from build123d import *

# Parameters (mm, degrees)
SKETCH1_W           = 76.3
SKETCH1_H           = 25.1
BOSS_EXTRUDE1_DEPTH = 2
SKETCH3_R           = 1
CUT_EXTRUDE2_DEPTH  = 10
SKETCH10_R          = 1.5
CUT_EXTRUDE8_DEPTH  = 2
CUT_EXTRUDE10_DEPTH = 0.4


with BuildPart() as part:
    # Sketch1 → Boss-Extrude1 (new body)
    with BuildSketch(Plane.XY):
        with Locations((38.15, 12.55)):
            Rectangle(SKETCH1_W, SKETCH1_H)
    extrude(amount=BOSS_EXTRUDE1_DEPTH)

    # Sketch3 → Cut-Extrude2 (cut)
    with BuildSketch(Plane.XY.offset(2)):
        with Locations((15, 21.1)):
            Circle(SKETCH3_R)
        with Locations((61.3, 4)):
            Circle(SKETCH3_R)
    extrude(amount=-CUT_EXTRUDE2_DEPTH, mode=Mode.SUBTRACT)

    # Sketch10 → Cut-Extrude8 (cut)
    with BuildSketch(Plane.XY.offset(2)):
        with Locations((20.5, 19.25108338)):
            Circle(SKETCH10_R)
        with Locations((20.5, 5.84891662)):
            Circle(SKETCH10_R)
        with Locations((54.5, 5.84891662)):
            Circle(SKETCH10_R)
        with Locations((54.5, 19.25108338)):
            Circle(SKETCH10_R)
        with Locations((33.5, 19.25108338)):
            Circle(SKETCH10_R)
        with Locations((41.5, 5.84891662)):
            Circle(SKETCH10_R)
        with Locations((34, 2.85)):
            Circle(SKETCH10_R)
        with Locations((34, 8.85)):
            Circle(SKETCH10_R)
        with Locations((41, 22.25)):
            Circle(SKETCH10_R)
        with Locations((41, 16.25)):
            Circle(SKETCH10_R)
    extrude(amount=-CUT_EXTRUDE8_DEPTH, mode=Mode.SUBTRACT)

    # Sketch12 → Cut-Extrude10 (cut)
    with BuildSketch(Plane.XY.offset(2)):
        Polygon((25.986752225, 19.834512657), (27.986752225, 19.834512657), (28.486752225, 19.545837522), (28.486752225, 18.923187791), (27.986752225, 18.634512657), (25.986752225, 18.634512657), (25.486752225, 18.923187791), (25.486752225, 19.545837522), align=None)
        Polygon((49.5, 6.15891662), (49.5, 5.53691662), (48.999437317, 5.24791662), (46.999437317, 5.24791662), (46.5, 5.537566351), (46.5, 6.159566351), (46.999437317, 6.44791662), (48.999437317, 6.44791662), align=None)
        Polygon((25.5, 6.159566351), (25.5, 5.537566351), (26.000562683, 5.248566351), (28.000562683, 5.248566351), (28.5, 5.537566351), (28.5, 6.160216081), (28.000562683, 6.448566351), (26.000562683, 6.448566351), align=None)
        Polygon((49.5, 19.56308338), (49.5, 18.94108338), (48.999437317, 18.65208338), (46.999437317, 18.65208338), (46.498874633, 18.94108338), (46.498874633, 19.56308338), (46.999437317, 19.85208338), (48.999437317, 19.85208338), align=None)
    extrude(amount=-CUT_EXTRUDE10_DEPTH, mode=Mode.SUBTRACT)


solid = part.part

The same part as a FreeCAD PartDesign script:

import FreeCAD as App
import Part
import Sketcher

V = App.Vector
Q = App.Units.Quantity


def add_polygon(sketch, points):
    """Adds a closed chain of lines whose ends are joined by coincident constraints."""
    first, n = sketch.GeometryCount, len(points)
    for a, b in zip(points, points[1:] + points[:1]):
        sketch.addGeometry(Part.LineSegment(App.Vector(*a, 0), App.Vector(*b, 0)), False)
    for i in range(n):
        sketch.addConstraint(Sketcher.Constraint("Coincident", first + i, 2, first + (i + 1) % n, 1))

doc = App.newDocument("Part")
params = doc.addObject("Spreadsheet::Sheet", "Params")
for row, (alias, value) in enumerate([
    ("sketch1_width", "76.3 mm"),
    ("sketch1_height", "25.1 mm"),
    ("pad1_length", "2 mm"),
    ("sketch2_diameter", "2 mm"),
    ("pocket1_length", "10 mm"),
    ("sketch3_diameter", "3 mm"),
    ("pocket2_length", "2 mm"),
    ("sketch4_width", "2 mm"),
    ("pocket3_length", "0.4 mm"),
], start=1):
    params.set(f"A{row}", alias)
    params.set(f"B{row}", "=" + value)
    params.setAlias(f"B{row}", alias)

body = doc.addObject("PartDesign::Body", "Body")

sketch1 = body.newObject("Sketcher::SketchObject", "Sketch")
sketch1.AttachmentSupport = (doc.getObject("XY_Plane"), [""])
sketch1.MapMode = "FlatFace"
add_polygon(sketch1, [(0, 25), (0, 0), (76, 0), (76, 25)])
sketch1.addConstraint([
    Sketcher.Constraint("Vertical", 0),
    Sketcher.Constraint("Horizontal", 1),
    Sketcher.Constraint("Vertical", 2),
    Sketcher.Constraint("Horizontal", 3),
    Sketcher.Constraint("Coincident", 0, 2, -1, 1),
    Sketcher.Constraint("DistanceX", 1, 1, 1, 2, Q("76.3 mm")),
    Sketcher.Constraint("DistanceY", 0, 2, 0, 1, Q("25.1 mm")),
])
sketch1.setExpression("Constraints[9]", "Params.sketch1_width")
sketch1.setExpression("Constraints[10]", "Params.sketch1_height")
pad1 = body.newObject("PartDesign::Pad", "Pad")
pad1.Profile = sketch1
pad1.setExpression("Length", "Params.pad1_length")

sketch2 = body.newObject("Sketcher::SketchObject", "Sketch001")
sketch2.AttachmentSupport = (doc.getObject("XY_Plane"), [""])
sketch2.MapMode = "FlatFace"
sketch2.AttachmentOffset = App.Placement(V(0, 0, 2), App.Rotation())
sketch2.addGeometry([
    Part.Circle(V(15, 21.1, 0), V(0, 0, 1), 1),
    Part.Circle(V(61.3, 4, 0), V(0, 0, 1), 1),
], False)
sketch2.addConstraint([
    Sketcher.Constraint("Equal", 0, 1),
    Sketcher.Constraint("Diameter", 0, Q("2 mm")),
    Sketcher.Constraint("DistanceX", -1, 1, 0, 3, Q("15 mm")),
    Sketcher.Constraint("DistanceY", -1, 1, 1, 3, Q("4 mm")),
    Sketcher.Constraint("DistanceY", -1, 1, 0, 3, Q("21.1 mm")),
    Sketcher.Constraint("DistanceX", -1, 1, 1, 3, Q("61.3 mm")),
])
sketch2.setExpression("Constraints[1]", "Params.sketch2_diameter")
pocket1 = body.newObject("PartDesign::Pocket", "Pocket")
pocket1.Profile = sketch2
pocket1.setExpression("Length", "Params.pocket1_length")

sketch3 = body.newObject("Sketcher::SketchObject", "Sketch002")
sketch3.AttachmentSupport = (doc.getObject("XY_Plane"), [""])
sketch3.MapMode = "FlatFace"
sketch3.AttachmentOffset = App.Placement(V(0, 0, 2), App.Rotation())
sketch3.addGeometry([
    Part.Circle(V(20.5, 19.3, 0), V(0, 0, 1), 1.5),
    Part.Circle(V(20.5, 5.8, 0), V(0, 0, 1), 1.5),
    Part.Circle(V(54.5, 5.8, 0), V(0, 0, 1), 1.5),
    Part.Circle(V(54.5, 19.3, 0), V(0, 0, 1), 1.5),
    Part.Circle(V(33.5, 19.3, 0), V(0, 0, 1), 1.5),
    Part.Circle(V(41.5, 5.8, 0), V(0, 0, 1), 1.5),
    Part.Circle(V(34, 2.9, 0), V(0, 0, 1), 1.5),
    Part.Circle(V(34, 8.8, 0), V(0, 0, 1), 1.5),
    Part.Circle(V(41, 22.2, 0), V(0, 0, 1), 1.5),
    Part.Circle(V(41, 16.2, 0), V(0, 0, 1), 1.5),
], False)
sketch3.addConstraint([
    Sketcher.Constraint("Equal", 0, 1),
    Sketcher.Constraint("Equal", 1, 2),
    Sketcher.Constraint("Equal", 2, 3),
    Sketcher.Constraint("Equal", 3, 4),
    Sketcher.Constraint("Equal", 4, 5),
    Sketcher.Constraint("Equal", 5, 6),
    Sketcher.Constraint("Equal", 6, 7),
    Sketcher.Constraint("Equal", 7, 8),
    Sketcher.Constraint("Equal", 8, 9),
    Sketcher.Constraint("Horizontal", 1, 3, 2, 3),
    Sketcher.Constraint("Horizontal", 0, 3, 3, 3),
    Sketcher.Constraint("Horizontal", 3, 3, 4, 3),
    Sketcher.Constraint("Horizontal", 2, 3, 5, 3),
    Sketcher.Constraint("Vertical", 0, 3, 1, 3),
    Sketcher.Constraint("Vertical", 2, 3, 3, 3),
    Sketcher.Constraint("Vertical", 6, 3, 7, 3),
    Sketcher.Constraint("Vertical", 8, 3, 9, 3),
    Sketcher.Constraint("Diameter", 0, Q("3 mm")),
    Sketcher.Constraint("DistanceX", -1, 1, 6, 3, Q("34 mm")),
    Sketcher.Constraint("DistanceX", -1, 1, 8, 3, Q("41 mm")),
    Sketcher.Constraint("DistanceX", 1, 3, 2, 3, Q("34 mm")),
    Sketcher.Constraint("DistanceX", 0, 3, 4, 3, Q("13 mm")),
    Sketcher.Constraint("DistanceX", 5, 3, 2, 3, Q("13 mm")),
    Sketcher.Constraint("DistanceY", 6, 3, 7, 3, Q("6 mm")),
    Sketcher.Constraint("DistanceY", 9, 3, 8, 3, Q("6 mm")),
    Sketcher.Constraint("DistanceX", -1, 1, 0, 3, Q("20.5 mm")),
    Sketcher.Constraint("DistanceY", 7, 3, 8, 3, Q("13.4 mm")),
    Sketcher.Constraint("DistanceY", -1, 1, 6, 3, Q("2.85 mm")),
    Sketcher.Constraint("DistanceY", -1, 1, 0, 3, Q("19.251083 mm")),
    Sketcher.Constraint("DistanceY", -1, 1, 1, 3, Q("5.848917 mm")),
])
sketch3.setExpression("Constraints[17]", "Params.sketch3_diameter")
pocket2 = body.newObject("PartDesign::Pocket", "Pocket001")
pocket2.Profile = sketch3
pocket2.setExpression("Length", "Params.pocket2_length")

sketch4 = body.newObject("Sketcher::SketchObject", "Sketch003")
sketch4.AttachmentSupport = (doc.getObject("XY_Plane"), [""])
sketch4.MapMode = "FlatFace"
sketch4.AttachmentOffset = App.Placement(V(0, 0, 2), App.Rotation())
add_polygon(sketch4, [(28, 19.8), (26, 19.8), (25.5, 19.5), (25.5, 18.9), (26, 18.6), (28, 18.6), (28.5, 18.9), (28.5, 19.5)])
add_polygon(sketch4, [(49.5, 5.5), (49.5, 6.2), (49, 6.4), (47, 6.4), (46.5, 6.2), (46.5, 5.5), (47, 5.2), (49, 5.2)])
add_polygon(sketch4, [(25.5, 6.2), (25.5, 5.5), (26, 5.2), (28, 5.2), (28.5, 5.5), (28.5, 6.2), (28, 6.4), (26, 6.4)])
add_polygon(sketch4, [(49.5, 18.9), (49.5, 19.6), (49, 19.9), (47, 19.9), (46.5, 19.6), (46.5, 18.9), (47, 18.7), (49, 18.7)])
sketch4.addConstraint([
    Sketcher.Constraint("Horizontal", 0),
    Sketcher.Constraint("Vertical", 2),
    Sketcher.Constraint("Horizontal", 4),
    Sketcher.Constraint("Vertical", 6),
    Sketcher.Constraint("Vertical", 8),
    Sketcher.Constraint("Horizontal", 10),
    Sketcher.Constraint("Vertical", 12),
    Sketcher.Constraint("Horizontal", 14),
    Sketcher.Constraint("Vertical", 16),
    Sketcher.Constraint("Horizontal", 18),
    Sketcher.Constraint("Vertical", 20),
    Sketcher.Constraint("Horizontal", 22),
    Sketcher.Constraint("Vertical", 24),
    Sketcher.Constraint("Horizontal", 26),
    Sketcher.Constraint("Vertical", 28),
    Sketcher.Constraint("Horizontal", 30),
    Sketcher.Constraint("Parallel", 1, 5),
    Sketcher.Constraint("Parallel", 3, 7),
    Sketcher.Constraint("Parallel", 7, 9),
    Sketcher.Constraint("Parallel", 5, 11),
    Sketcher.Constraint("Parallel", 11, 15),
    Sketcher.Constraint("Parallel", 9, 17),
    Sketcher.Constraint("Parallel", 17, 21),
    Sketcher.Constraint("Parallel", 15, 23),
    Sketcher.Constraint("Parallel", 21, 25),
    Sketcher.Constraint("Parallel", 23, 27),
    Sketcher.Constraint("Parallel", 25, 29),
    Sketcher.Constraint("Parallel", 27, 31),
    Sketcher.Constraint("Horizontal", 2, 2, 5, 2),
    Sketcher.Constraint("Horizontal", 1, 2, 6, 2),
    Sketcher.Constraint("Horizontal", 12, 2, 16, 2),
    Sketcher.Constraint("Horizontal", 16, 2, 19, 2),
    Sketcher.Constraint("Horizontal", 11, 2, 23, 2),
    Sketcher.Constraint("Horizontal", 24, 2, 27, 2),
    Sketcher.Constraint("Horizontal", 28, 2, 31, 2),
    Sketcher.Constraint("Vertical", 0, 2, 3, 2),
    Sketcher.Constraint("Vertical", 4, 2, 7, 2),
    Sketcher.Constraint("Vertical", 10, 2, 13, 2),
    Sketcher.Constraint("Vertical", 9, 2, 14, 2),
    Sketcher.Constraint("Vertical", 18, 2, 21, 2),
    Sketcher.Constraint("Vertical", 17, 2, 22, 2),
    Sketcher.Constraint("Vertical", 15, 2, 24, 2),
    Sketcher.Constraint("Vertical", 14, 2, 25, 2),
    Sketcher.Constraint("Vertical", 13, 2, 26, 2),
    Sketcher.Constraint("Vertical", 26, 2, 29, 2),
    Sketcher.Constraint("Equal", 4, 10),
    Sketcher.Constraint("Equal", 14, 18),
    Sketcher.Constraint("Equal", 8, 12),
    Sketcher.Constraint("Equal", 6, 20),
    Sketcher.Constraint("Equal", 16, 24),
    Sketcher.Constraint("Equal", 7, 13),
    Sketcher.Constraint("Equal", 15, 17),
    Sketcher.Constraint("Equal", 11, 21),
    Sketcher.Constraint("DistanceX", 0, 2, 0, 1, Q("2 mm")),
    Sketcher.Constraint("Angle", 1, Q("-150 deg")),
    Sketcher.Constraint("DistanceX", 2, 2, 5, 2, Q("3 mm")),
    Sketcher.Constraint("DistanceX", -1, 1, 8, 2, Q("49.5 mm")),
    Sketcher.Constraint("DistanceX", -1, 1, 16, 2, Q("25.5 mm")),
    Sketcher.Constraint("DistanceY", 3, 2, 0, 2, Q("1.2 mm")),
    Sketcher.Constraint("DistanceY", 8, 1, 8, 2, Q("0.622 mm")),
    Sketcher.Constraint("DistanceY", 8, 2, 5, 2, Q("12.764271 mm")),
    Sketcher.Constraint("DistanceX", 3, 2, 17, 2, Q("0.01381 mm")),
    Sketcher.Constraint("DistanceY", -1, 1, 0, 2, Q("19.834513 mm")),
    Sketcher.Constraint("DistanceY", -1, 1, 24, 2, Q("19.563083 mm")),
])
sketch4.setExpression("Constraints[85]", "Params.sketch4_width")
pocket3 = body.newObject("PartDesign::Pocket", "Pocket002")
pocket3.Profile = sketch4
pocket3.setExpression("Length", "Params.pocket3_length")

doc.recompute()
